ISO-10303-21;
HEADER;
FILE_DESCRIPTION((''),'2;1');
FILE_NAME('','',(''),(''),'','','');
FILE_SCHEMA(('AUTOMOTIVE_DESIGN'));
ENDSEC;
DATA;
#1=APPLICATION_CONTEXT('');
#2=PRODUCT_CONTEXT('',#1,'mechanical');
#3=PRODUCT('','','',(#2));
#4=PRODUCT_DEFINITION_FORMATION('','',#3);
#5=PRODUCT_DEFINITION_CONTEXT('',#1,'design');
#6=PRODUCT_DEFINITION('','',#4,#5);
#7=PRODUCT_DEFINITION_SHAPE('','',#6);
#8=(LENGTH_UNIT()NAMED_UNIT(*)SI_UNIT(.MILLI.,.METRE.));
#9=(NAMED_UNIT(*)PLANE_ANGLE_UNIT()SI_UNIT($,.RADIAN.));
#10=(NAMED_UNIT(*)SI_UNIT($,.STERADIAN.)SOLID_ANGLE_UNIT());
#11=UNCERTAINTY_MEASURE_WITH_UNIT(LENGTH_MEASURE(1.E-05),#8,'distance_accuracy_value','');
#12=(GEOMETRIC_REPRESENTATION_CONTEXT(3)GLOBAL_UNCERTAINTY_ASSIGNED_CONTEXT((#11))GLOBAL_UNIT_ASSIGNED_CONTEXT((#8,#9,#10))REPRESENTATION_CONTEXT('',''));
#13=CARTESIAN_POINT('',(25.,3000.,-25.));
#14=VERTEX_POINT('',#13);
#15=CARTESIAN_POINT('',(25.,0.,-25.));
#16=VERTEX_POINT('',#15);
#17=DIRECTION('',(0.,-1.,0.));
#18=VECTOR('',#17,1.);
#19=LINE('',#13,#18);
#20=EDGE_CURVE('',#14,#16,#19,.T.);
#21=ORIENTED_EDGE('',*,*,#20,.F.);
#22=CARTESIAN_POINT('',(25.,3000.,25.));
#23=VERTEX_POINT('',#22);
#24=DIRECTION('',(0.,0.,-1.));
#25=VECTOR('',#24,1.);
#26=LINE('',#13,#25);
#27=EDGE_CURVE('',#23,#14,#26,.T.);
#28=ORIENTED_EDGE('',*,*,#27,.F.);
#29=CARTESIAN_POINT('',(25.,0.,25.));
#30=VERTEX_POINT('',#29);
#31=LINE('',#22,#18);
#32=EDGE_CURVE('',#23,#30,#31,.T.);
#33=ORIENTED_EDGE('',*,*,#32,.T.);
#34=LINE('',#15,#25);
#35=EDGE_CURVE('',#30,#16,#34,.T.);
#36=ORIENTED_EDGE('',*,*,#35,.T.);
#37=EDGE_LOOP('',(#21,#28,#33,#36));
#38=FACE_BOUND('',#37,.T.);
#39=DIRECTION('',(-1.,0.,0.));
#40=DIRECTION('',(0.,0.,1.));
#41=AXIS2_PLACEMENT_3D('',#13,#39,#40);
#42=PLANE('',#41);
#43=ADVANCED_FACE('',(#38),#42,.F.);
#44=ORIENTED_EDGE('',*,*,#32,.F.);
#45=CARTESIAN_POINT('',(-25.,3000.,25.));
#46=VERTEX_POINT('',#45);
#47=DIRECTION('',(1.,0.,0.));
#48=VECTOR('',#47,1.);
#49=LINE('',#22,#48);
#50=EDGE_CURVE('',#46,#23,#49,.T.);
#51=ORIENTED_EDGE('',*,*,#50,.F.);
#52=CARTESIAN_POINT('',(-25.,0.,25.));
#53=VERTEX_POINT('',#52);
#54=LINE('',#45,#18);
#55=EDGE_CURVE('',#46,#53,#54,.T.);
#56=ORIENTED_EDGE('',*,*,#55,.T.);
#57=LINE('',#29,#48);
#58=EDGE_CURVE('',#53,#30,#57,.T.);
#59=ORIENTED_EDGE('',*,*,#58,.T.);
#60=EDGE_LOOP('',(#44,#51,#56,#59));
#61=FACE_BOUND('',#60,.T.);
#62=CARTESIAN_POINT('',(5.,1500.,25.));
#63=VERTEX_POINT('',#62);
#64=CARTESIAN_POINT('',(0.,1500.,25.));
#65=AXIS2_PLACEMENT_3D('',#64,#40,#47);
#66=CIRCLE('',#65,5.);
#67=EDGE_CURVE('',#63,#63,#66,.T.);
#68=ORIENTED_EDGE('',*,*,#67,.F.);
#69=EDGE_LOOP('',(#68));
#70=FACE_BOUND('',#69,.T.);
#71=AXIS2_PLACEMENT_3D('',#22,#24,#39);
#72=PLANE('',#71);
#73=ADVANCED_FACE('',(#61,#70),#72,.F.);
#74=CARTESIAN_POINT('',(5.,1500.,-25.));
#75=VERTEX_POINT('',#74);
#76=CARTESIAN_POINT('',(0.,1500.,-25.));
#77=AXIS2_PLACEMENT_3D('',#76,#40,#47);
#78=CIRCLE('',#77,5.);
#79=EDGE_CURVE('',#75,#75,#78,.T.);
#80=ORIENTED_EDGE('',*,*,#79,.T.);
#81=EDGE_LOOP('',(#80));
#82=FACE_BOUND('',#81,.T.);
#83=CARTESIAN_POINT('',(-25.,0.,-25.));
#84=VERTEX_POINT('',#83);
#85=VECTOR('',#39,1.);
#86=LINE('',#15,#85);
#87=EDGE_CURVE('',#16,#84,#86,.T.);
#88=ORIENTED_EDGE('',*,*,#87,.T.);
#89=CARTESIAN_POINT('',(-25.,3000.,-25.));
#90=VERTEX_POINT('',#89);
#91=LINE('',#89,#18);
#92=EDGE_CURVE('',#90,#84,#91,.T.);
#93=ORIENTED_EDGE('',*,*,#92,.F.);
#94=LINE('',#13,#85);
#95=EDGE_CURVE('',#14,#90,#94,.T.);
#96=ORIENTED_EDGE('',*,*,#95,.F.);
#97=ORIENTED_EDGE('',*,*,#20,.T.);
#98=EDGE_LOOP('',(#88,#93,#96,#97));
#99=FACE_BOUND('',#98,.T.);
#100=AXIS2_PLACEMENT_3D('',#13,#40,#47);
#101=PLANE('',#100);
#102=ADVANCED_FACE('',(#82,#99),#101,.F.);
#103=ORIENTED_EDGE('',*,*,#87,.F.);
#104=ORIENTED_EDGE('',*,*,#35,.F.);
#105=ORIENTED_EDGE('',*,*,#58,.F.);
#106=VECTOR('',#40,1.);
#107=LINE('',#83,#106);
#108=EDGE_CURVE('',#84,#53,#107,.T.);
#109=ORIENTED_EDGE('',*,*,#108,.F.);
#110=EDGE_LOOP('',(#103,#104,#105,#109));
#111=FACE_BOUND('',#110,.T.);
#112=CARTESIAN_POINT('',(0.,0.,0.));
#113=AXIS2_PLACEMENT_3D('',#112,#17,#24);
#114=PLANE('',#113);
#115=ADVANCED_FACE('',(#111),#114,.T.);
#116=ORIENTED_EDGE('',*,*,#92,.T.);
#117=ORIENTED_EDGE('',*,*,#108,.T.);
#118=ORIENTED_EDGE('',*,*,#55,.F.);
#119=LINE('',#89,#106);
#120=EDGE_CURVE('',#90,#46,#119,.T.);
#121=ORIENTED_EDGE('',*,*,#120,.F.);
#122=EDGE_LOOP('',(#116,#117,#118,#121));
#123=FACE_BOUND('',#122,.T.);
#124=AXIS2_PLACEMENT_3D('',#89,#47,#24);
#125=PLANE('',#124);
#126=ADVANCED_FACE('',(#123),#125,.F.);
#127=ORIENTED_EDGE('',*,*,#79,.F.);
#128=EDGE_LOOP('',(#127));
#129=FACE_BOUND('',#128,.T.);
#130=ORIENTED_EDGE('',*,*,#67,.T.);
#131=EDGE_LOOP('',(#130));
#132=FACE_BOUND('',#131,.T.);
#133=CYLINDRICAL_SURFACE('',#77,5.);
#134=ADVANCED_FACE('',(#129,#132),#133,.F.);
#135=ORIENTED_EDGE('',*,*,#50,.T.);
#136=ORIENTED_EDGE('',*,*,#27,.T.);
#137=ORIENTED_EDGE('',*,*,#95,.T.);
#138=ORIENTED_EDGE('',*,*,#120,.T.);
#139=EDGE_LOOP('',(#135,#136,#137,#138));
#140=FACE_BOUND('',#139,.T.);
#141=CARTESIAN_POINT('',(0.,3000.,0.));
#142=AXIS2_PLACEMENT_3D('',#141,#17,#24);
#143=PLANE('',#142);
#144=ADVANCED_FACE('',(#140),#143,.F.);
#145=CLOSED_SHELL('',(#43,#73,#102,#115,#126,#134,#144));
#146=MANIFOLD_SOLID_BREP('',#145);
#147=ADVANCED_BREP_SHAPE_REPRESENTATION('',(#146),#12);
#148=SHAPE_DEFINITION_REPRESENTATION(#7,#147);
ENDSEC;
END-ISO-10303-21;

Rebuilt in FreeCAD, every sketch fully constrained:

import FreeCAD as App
import Part
import Sketcher
from FreeCAD import Vector

doc = App.newDocument("Part")
body = doc.addObject("PartDesign::Body", "Body")

# Sketch on XZ plane
sketch1 = body.newObject("Sketcher::SketchObject", "Sketch")
sketch1.AttachmentSupport = (doc.getObject("XZ_Plane"), [""])
sketch1.MapMode = "FlatFace"
sketch1.addGeometry([
    Part.LineSegment(Vector(-25, -25, 0), Vector(-25, 25, 0)),
    Part.LineSegment(Vector(-25, 25, 0), Vector(25, 25, 0)),
    Part.LineSegment(Vector(25, 25, 0), Vector(25, -25, 0)),
    Part.LineSegment(Vector(25, -25, 0), Vector(-25, -25, 0)),
], False)
sketch1.addConstraint([
    Sketcher.Constraint("Coincident", 0, 2, 1, 1),
    Sketcher.Constraint("Coincident", 1, 2, 2, 1),
    Sketcher.Constraint("Coincident", 2, 2, 3, 1),
    Sketcher.Constraint("Coincident", 3, 2, 0, 1),
    Sketcher.Constraint("Vertical", 0),
    Sketcher.Constraint("Horizontal", 1),
    Sketcher.Constraint("Vertical", 2),
    Sketcher.Constraint("Horizontal", 3),
    Sketcher.Constraint("Symmetric", 0, 2, 2, 2, -1, 1),
    Sketcher.Constraint("Equal", 3, 0),
    Sketcher.Constraint("DistanceX", 1, 1, 1, 2, 50.0),
])
pad1 = body.newObject("PartDesign::Pad", "Pad")
pad1.Profile = sketch1
pad1.Length = 3000
pad1.Reversed = True

# Sketch on XY plane
sketch2 = body.newObject("Sketcher::SketchObject", "Sketch001")
sketch2.AttachmentSupport = (doc.getObject("XY_Plane"), [""])
sketch2.MapMode = "FlatFace"
sketch2.AttachmentOffset = App.Placement(Vector(0, 0, 25), App.Rotation())
sketch2.addGeometry(Part.Circle(Vector(0, 1500, 0), Vector(0, 0, 1), 5), False)
sketch2.addConstraint([
    Sketcher.Constraint("PointOnObject", 0, 3, -2),
    Sketcher.Constraint("Diameter", 0, 10.0),
    Sketcher.Constraint("DistanceY", -1, 1, 0, 3, 1500.0),
])
pocket1 = body.newObject("PartDesign::Pocket", "Pocket")
pocket1.Profile = sketch2
pocket1.Length = 50

doc.recompute()
